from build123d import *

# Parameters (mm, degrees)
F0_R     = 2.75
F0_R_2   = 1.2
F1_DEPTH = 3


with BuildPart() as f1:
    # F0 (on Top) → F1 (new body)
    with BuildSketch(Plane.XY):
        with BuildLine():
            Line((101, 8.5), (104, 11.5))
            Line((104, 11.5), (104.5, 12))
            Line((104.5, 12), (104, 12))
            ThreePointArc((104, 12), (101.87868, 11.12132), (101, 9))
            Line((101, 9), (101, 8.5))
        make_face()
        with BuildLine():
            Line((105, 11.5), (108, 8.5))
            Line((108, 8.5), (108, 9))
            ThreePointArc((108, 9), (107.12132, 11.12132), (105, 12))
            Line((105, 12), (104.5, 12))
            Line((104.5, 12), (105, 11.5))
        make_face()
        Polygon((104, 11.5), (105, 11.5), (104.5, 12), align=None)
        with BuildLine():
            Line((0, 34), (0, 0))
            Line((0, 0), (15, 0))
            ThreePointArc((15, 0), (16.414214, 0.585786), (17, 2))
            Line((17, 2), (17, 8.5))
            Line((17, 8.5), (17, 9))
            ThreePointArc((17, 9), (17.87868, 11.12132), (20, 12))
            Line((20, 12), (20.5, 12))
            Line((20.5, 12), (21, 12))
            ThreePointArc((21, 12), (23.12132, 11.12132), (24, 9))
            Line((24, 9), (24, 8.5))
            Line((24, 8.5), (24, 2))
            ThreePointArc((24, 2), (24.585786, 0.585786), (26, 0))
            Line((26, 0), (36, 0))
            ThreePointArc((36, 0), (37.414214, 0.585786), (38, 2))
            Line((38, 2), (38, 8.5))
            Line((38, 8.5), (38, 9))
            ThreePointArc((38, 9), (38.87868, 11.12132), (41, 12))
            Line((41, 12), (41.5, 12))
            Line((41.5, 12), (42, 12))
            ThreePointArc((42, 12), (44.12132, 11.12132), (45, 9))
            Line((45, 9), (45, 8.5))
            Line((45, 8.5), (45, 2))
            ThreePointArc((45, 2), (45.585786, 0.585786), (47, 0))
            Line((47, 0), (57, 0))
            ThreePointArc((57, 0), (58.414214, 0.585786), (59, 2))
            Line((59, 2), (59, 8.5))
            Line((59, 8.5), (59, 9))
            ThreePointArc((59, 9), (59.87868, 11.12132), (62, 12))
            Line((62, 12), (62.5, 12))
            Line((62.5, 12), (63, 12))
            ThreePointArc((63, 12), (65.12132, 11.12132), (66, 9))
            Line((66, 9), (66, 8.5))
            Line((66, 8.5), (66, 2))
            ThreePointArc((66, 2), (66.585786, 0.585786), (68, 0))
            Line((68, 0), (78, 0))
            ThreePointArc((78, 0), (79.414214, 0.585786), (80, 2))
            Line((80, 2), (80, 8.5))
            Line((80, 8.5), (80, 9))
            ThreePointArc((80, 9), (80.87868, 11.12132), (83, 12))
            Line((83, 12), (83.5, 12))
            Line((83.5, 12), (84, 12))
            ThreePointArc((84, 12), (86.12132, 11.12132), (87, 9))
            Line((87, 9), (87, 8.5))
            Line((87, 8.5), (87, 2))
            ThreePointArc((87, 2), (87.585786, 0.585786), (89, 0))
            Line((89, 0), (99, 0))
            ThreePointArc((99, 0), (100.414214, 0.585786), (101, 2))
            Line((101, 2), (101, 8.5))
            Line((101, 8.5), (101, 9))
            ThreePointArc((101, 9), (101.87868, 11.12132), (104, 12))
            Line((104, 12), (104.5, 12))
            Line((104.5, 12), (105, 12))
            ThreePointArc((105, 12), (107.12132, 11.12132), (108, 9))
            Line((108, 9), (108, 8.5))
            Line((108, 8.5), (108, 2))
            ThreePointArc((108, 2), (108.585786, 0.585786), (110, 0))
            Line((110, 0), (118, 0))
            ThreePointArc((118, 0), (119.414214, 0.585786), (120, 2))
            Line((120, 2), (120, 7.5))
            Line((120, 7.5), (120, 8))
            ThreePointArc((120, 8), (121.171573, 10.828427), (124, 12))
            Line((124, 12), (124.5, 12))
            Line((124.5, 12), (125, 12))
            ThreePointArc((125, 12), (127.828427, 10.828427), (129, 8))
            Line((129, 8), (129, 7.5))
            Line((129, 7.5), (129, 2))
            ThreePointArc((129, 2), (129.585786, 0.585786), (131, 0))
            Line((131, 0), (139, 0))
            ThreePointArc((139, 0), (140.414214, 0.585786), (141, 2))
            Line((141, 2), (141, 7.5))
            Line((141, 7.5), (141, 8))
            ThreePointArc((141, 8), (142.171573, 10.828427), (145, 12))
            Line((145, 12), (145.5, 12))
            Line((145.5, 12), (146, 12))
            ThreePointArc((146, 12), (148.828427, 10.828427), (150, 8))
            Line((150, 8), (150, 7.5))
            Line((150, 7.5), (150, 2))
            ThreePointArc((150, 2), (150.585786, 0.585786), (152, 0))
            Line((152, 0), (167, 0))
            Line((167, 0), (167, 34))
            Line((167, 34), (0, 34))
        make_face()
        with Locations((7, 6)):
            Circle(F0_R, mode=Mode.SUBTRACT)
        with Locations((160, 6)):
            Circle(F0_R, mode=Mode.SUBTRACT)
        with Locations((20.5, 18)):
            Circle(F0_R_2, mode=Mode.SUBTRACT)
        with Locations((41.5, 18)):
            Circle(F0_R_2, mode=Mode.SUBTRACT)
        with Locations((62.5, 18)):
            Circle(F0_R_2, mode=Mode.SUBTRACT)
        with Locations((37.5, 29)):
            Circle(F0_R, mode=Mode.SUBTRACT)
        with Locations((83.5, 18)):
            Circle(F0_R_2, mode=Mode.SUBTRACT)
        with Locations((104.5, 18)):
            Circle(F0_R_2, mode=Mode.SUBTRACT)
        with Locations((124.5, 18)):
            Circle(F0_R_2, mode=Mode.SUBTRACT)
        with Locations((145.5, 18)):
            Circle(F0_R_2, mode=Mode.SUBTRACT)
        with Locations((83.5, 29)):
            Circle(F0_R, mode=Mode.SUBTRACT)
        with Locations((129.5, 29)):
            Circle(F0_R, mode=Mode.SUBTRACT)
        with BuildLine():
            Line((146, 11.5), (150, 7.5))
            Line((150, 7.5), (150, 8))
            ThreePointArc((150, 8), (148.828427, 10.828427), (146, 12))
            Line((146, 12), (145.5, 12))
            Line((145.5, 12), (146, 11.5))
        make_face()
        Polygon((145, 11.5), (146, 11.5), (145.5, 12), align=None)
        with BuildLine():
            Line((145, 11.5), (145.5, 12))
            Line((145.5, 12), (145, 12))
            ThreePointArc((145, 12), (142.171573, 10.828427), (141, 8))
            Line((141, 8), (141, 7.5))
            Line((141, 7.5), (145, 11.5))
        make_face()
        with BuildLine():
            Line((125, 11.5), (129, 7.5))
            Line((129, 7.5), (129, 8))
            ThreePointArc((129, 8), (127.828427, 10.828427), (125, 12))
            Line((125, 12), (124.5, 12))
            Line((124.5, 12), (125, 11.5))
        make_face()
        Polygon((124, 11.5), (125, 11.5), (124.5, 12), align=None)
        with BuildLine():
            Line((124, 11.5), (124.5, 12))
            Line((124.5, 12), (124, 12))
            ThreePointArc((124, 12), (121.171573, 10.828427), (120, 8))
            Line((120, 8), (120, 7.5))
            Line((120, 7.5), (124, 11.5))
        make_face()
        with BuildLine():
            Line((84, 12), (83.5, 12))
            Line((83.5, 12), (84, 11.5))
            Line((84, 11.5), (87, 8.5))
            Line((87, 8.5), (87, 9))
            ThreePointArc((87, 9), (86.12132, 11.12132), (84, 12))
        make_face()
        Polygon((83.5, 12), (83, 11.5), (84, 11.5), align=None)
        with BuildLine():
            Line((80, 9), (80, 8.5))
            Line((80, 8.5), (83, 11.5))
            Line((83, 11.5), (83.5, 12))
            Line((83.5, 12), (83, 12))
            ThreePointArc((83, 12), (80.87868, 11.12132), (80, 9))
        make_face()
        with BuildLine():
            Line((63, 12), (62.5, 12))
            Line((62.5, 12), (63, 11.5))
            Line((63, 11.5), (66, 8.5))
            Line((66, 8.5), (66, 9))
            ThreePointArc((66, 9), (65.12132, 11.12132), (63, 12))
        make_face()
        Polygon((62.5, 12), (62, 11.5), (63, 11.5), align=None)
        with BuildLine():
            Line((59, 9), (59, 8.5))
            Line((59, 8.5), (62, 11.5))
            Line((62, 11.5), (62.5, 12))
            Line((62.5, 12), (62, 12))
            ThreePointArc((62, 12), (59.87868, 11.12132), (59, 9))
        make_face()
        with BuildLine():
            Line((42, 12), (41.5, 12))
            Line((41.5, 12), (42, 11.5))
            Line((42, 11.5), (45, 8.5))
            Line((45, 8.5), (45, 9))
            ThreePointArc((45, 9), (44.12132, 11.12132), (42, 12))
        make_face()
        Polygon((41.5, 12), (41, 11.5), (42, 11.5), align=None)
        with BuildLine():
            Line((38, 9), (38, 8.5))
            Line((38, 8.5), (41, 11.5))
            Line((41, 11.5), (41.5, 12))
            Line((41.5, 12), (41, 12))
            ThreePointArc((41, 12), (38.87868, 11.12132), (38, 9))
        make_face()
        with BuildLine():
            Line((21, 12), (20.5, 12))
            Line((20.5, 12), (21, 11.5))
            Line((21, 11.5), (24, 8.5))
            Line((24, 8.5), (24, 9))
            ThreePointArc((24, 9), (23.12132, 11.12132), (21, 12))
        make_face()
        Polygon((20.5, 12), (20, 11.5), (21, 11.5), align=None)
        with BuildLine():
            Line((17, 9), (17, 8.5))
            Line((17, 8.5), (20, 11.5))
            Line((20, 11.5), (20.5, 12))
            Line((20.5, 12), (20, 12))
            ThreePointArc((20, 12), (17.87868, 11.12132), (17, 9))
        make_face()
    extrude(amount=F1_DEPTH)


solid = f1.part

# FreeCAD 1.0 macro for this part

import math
import FreeCAD as App
import Part
import Sketcher

doc = App.newDocument("Part")
body = doc.addObject("PartDesign::Body", "Body")

# Sketch on XY plane
sketch1 = body.newObject("Sketcher::SketchObject", "Sketch")
sketch1.AttachmentSupport = (doc.getObject("XY_Plane"), [""])
sketch1.MapMode = "FlatFace"
sketch1.addGeometry([
    Part.LineSegment(App.Vector(101, 8.5, 0), App.Vector(104, 11.5, 0)),  # 0
    Part.LineSegment(App.Vector(104, 11.5, 0), App.Vector(105, 11.5, 0)),  # 1
    Part.LineSegment(App.Vector(105, 11.5, 0), App.Vector(108, 8.5, 0)),  # 2
    Part.LineSegment(App.Vector(108, 8.5, 0), App.Vector(108, 2, 0)),  # 3
    Part.ArcOfCircle(Part.Circle(App.Vector(110, 2, 0), App.Vector(0, 0, 1), 2), math.radians(180), math.radians(270)),  # 4
    Part.LineSegment(App.Vector(110, 0, 0), App.Vector(118, 0, 0)),  # 5
    Part.ArcOfCircle(Part.Circle(App.Vector(118, 2, 0), App.Vector(0, 0, 1), 2), math.radians(-90), math.radians(0)),  # 6
    Part.LineSegment(App.Vector(120, 2, 0), App.Vector(120, 7.5, 0)),  # 7
    Part.LineSegment(App.Vector(120, 7.5, 0), App.Vector(124, 11.5, 0)),  # 8
    Part.LineSegment(App.Vector(124, 11.5, 0), App.Vector(125, 11.5, 0)),  # 9
    Part.LineSegment(App.Vector(125, 11.5, 0), App.Vector(129, 7.5, 0)),  # 10
    Part.LineSegment(App.Vector(129, 7.5, 0), App.Vector(129, 2, 0)),  # 11
    Part.ArcOfCircle(Part.Circle(App.Vector(131, 2, 0), App.Vector(0, 0, 1), 2), math.radians(180), math.radians(270)),  # 12
    Part.LineSegment(App.Vector(131, 0, 0), App.Vector(139, 0, 0)),  # 13
    Part.ArcOfCircle(Part.Circle(App.Vector(139, 2, 0), App.Vector(0, 0, 1), 2), math.radians(-90), math.radians(0)),  # 14
    Part.LineSegment(App.Vector(141, 2, 0), App.Vector(141, 7.5, 0)),  # 15
    Part.LineSegment(App.Vector(141, 7.5, 0), App.Vector(145, 11.5, 0)),  # 16
    Part.LineSegment(App.Vector(145, 11.5, 0), App.Vector(146, 11.5, 0)),  # 17
    Part.LineSegment(App.Vector(146, 11.5, 0), App.Vector(150, 7.5, 0)),  # 18
    Part.LineSegment(App.Vector(150, 7.5, 0), App.Vector(150, 2, 0)),  # 19
    Part.ArcOfCircle(Part.Circle(App.Vector(152, 2, 0), App.Vector(0, 0, 1), 2), math.radians(180), math.radians(270)),  # 20
    Part.LineSegment(App.Vector(152, 0, 0), App.Vector(167, 0, 0)),  # 21
    Part.LineSegment(App.Vector(167, 0, 0), App.Vector(167, 34, 0)),  # 22
    Part.LineSegment(App.Vector(167, 34, 0), App.Vector(0, 34, 0)),  # 23
    Part.LineSegment(App.Vector(0, 34, 0), App.Vector(0, 0, 0)),  # 24
    Part.LineSegment(App.Vector(0, 0, 0), App.Vector(15, 0, 0)),  # 25
    Part.ArcOfCircle(Part.Circle(App.Vector(15, 2, 0), App.Vector(0, 0, 1), 2), math.radians(-90), math.radians(0)),  # 26
    Part.LineSegment(App.Vector(17, 2, 0), App.Vector(17, 8.5, 0)),  # 27
    Part.LineSegment(App.Vector(17, 8.5, 0), App.Vector(20, 11.5, 0)),  # 28
    Part.LineSegment(App.Vector(20, 11.5, 0), App.Vector(21, 11.5, 0)),  # 29
    Part.LineSegment(App.Vector(21, 11.5, 0), App.Vector(24, 8.5, 0)),  # 30
    Part.LineSegment(App.Vector(24, 8.5, 0), App.Vector(24, 2, 0)),  # 31
    Part.ArcOfCircle(Part.Circle(App.Vector(26, 2, 0), App.Vector(0, 0, 1), 2), math.radians(180), math.radians(270)),  # 32
    Part.LineSegment(App.Vector(26, 0, 0), App.Vector(36, 0, 0)),  # 33
    Part.ArcOfCircle(Part.Circle(App.Vector(36, 2, 0), App.Vector(0, 0, 1), 2), math.radians(-90), math.radians(0)),  # 34
    Part.LineSegment(App.Vector(38, 2, 0), App.Vector(38, 8.5, 0)),  # 35
    Part.LineSegment(App.Vector(38, 8.5, 0), App.Vector(41, 11.5, 0)),  # 36
    Part.LineSegment(App.Vector(41, 11.5, 0), App.Vector(42, 11.5, 0)),  # 37
    Part.LineSegment(App.Vector(42, 11.5, 0), App.Vector(45, 8.5, 0)),  # 38
    Part.LineSegment(App.Vector(45, 8.5, 0), App.Vector(45, 2, 0)),  # 39
    Part.ArcOfCircle(Part.Circle(App.Vector(47, 2, 0), App.Vector(0, 0, 1), 2), math.radians(180), math.radians(270)),  # 40
    Part.LineSegment(App.Vector(47, 0, 0), App.Vector(57, 0, 0)),  # 41
    Part.ArcOfCircle(Part.Circle(App.Vector(57, 2, 0), App.Vector(0, 0, 1), 2), math.radians(-90), math.radians(0)),  # 42
    Part.LineSegment(App.Vector(59, 2, 0), App.Vector(59, 8.5, 0)),  # 43
    Part.LineSegment(App.Vector(59, 8.5, 0), App.Vector(62, 11.5, 0)),  # 44
    Part.LineSegment(App.Vector(62, 11.5, 0), App.Vector(63, 11.5, 0)),  # 45
    Part.LineSegment(App.Vector(63, 11.5, 0), App.Vector(66, 8.5, 0)),  # 46
    Part.LineSegment(App.Vector(66, 8.5, 0), App.Vector(66, 2, 0)),  # 47
    Part.ArcOfCircle(Part.Circle(App.Vector(68, 2, 0), App.Vector(0, 0, 1), 2), math.radians(180), math.radians(270)),  # 48
    Part.LineSegment(App.Vector(68, 0, 0), App.Vector(78, 0, 0)),  # 49
    Part.ArcOfCircle(Part.Circle(App.Vector(78, 2, 0), App.Vector(0, 0, 1), 2), math.radians(-90), math.radians(0)),  # 50
    Part.LineSegment(App.Vector(80, 2, 0), App.Vector(80, 8.5, 0)),  # 51
    Part.LineSegment(App.Vector(80, 8.5, 0), App.Vector(83, 11.5, 0)),  # 52
    Part.LineSegment(App.Vector(83, 11.5, 0), App.Vector(84, 11.5, 0)),  # 53
    Part.LineSegment(App.Vector(84, 11.5, 0), App.Vector(87, 8.5, 0)),  # 54
    Part.LineSegment(App.Vector(87, 8.5, 0), App.Vector(87, 2, 0)),  # 55
    Part.ArcOfCircle(Part.Circle(App.Vector(89, 2, 0), App.Vector(0, 0, 1), 2), math.radians(180), math.radians(270)),  # 56
    Part.LineSegment(App.Vector(89, 0, 0), App.Vector(99, 0, 0)),  # 57
    Part.ArcOfCircle(Part.Circle(App.Vector(99, 2, 0), App.Vector(0, 0, 1), 2), math.radians(-90), math.radians(0)),  # 58
    Part.LineSegment(App.Vector(101, 2, 0), App.Vector(101, 8.5, 0)),  # 59
    Part.Circle(App.Vector(7, 6, 0), App.Vector(0, 0, 1), 2.8),  # 60
    Part.Circle(App.Vector(160, 6, 0), App.Vector(0, 0, 1), 2.8),  # 61
    Part.Circle(App.Vector(20.5, 18, 0), App.Vector(0, 0, 1), 1.2),  # 62
    Part.Circle(App.Vector(41.5, 18, 0), App.Vector(0, 0, 1), 1.2),  # 63
    Part.Circle(App.Vector(62.5, 18, 0), App.Vector(0, 0, 1), 1.2),  # 64
    Part.Circle(App.Vector(37.5, 29, 0), App.Vector(0, 0, 1), 2.8),  # 65
    Part.Circle(App.Vector(83.5, 18, 0), App.Vector(0, 0, 1), 1.2),  # 66
    Part.Circle(App.Vector(104.5, 18, 0), App.Vector(0, 0, 1), 1.2),  # 67
    Part.Circle(App.Vector(124.5, 18, 0), App.Vector(0, 0, 1), 1.2),  # 68
    Part.Circle(App.Vector(145.5, 18, 0), App.Vector(0, 0, 1), 1.2),  # 69
    Part.Circle(App.Vector(83.5, 29, 0), App.Vector(0, 0, 1), 2.8),  # 70
    Part.Circle(App.Vector(129.5, 29, 0), App.Vector(0, 0, 1), 2.8),  # 71
], False)
sketch1.addConstraint([
    Sketcher.Constraint("Coincident", 0, 2, 1, 1),
    Sketcher.Constraint("Coincident", 1, 2, 2, 1),
    Sketcher.Constraint("Coincident", 2, 2, 3, 1),
    Sketcher.Constraint("Tangent", 3, 2, 4, 1),
    Sketcher.Constraint("Tangent", 4, 2, 5, 1),
    Sketcher.Constraint("Tangent", 5, 2, 6, 1),
    Sketcher.Constraint("Tangent", 6, 2, 7, 1),
    Sketcher.Constraint("Coincident", 7, 2, 8, 1),
    Sketcher.Constraint("Coincident", 8, 2, 9, 1),
    Sketcher.Constraint("Coincident", 9, 2, 10, 1),
    Sketcher.Constraint("Coincident", 10, 2, 11, 1),
    Sketcher.Constraint("Tangent", 11, 2, 12, 1),
    Sketcher.Constraint("Tangent", 12, 2, 13, 1),
    Sketcher.Constraint("Tangent", 13, 2, 14, 1),
    Sketcher.Constraint("Tangent", 14, 2, 15, 1),
    Sketcher.Constraint("Coincident", 15, 2, 16, 1),
    Sketcher.Constraint("Coincident", 16, 2, 17, 1),
    Sketcher.Constraint("Coincident", 17, 2, 18, 1),
    Sketcher.Constraint("Coincident", 18, 2, 19, 1),
    Sketcher.Constraint("Tangent", 19, 2, 20, 1),
    Sketcher.Constraint("Tangent", 20, 2, 21, 1),
    Sketcher.Constraint("Coincident", 21, 2, 22, 1),
    Sketcher.Constraint("Coincident", 22, 2, 23, 1),
    Sketcher.Constraint("Coincident", 23, 2, 24, 1),
    Sketcher.Constraint("Coincident", 24, 2, 25, 1),
    Sketcher.Constraint("Tangent", 25, 2, 26, 1),
    Sketcher.Constraint("Tangent", 26, 2, 27, 1),
    Sketcher.Constraint("Coincident", 27, 2, 28, 1),
    Sketcher.Constraint("Coincident", 28, 2, 29, 1),
    Sketcher.Constraint("Coincident", 29, 2, 30, 1),
    Sketcher.Constraint("Coincident", 30, 2, 31, 1),
    Sketcher.Constraint("Tangent", 31, 2, 32, 1),
    Sketcher.Constraint("Tangent", 32, 2, 33, 1),
    Sketcher.Constraint("Tangent", 33, 2, 34, 1),
    Sketcher.Constraint("Tangent", 34, 2, 35, 1),
    Sketcher.Constraint("Coincident", 35, 2, 36, 1),
    Sketcher.Constraint("Coincident", 36, 2, 37, 1),
    Sketcher.Constraint("Coincident", 37, 2, 38, 1),
    Sketcher.Constraint("Coincident", 38, 2, 39, 1),
    Sketcher.Constraint("Tangent", 39, 2, 40, 1),
    Sketcher.Constraint("Tangent", 40, 2, 41, 1),
    Sketcher.Constraint("Tangent", 41, 2, 42, 1),
    Sketcher.Constraint("Tangent", 42, 2, 43, 1),
    Sketcher.Constraint("Coincident", 43, 2, 44, 1),
    Sketcher.Constraint("Coincident", 44, 2, 45, 1),
    Sketcher.Constraint("Coincident", 45, 2, 46, 1),
    Sketcher.Constraint("Coincident", 46, 2, 47, 1),
    Sketcher.Constraint("Tangent", 47, 2, 48, 1),
    Sketcher.Constraint("Tangent", 48, 2, 49, 1),
    Sketcher.Constraint("Tangent", 49, 2, 50, 1),
    Sketcher.Constraint("Tangent", 50, 2, 51, 1),
    Sketcher.Constraint("Coincident", 51, 2, 52, 1),
    Sketcher.Constraint("Coincident", 52, 2, 53, 1),
    Sketcher.Constraint("Coincident", 53, 2, 54, 1),
    Sketcher.Constraint("Coincident", 54, 2, 55, 1),
    Sketcher.Constraint("Tangent", 55, 2, 56, 1),
    Sketcher.Constraint("Tangent", 56, 2, 57, 1),
    Sketcher.Constraint("Tangent", 57, 2, 58, 1),
    Sketcher.Constraint("Tangent", 58, 2, 59, 1),
    Sketcher.Constraint("Coincident", 59, 2, 0, 1),
    Sketcher.Constraint("Horizontal", 1),
    Sketcher.Constraint("Vertical", 3),
    Sketcher.Constraint("Horizontal", 5),
    Sketcher.Constraint("Vertical", 7),
    Sketcher.Constraint("Horizontal", 9),
    Sketcher.Constraint("Vertical", 11),
    Sketcher.Constraint("Horizontal", 13),
    Sketcher.Constraint("Vertical", 15),
    Sketcher.Constraint("Horizontal", 17),
    Sketcher.Constraint("Vertical", 19),
    Sketcher.Constraint("Horizontal", 21),
    Sketcher.Constraint("Vertical", 22),
    Sketcher.Constraint("Horizontal", 23),
    Sketcher.Constraint("Vertical", 24),
    Sketcher.Constraint("Horizontal", 25),
    Sketcher.Constraint("Vertical", 27),
    Sketcher.Constraint("Horizontal", 29),
    Sketcher.Constraint("Vertical", 31),
    Sketcher.Constraint("Horizontal", 33),
    Sketcher.Constraint("Vertical", 35),
    Sketcher.Constraint("Horizontal", 37),
    Sketcher.Constraint("Vertical", 39),
    Sketcher.Constraint("Horizontal", 41),
    Sketcher.Constraint("Vertical", 43),
    Sketcher.Constraint("Horizontal", 45),
    Sketcher.Constraint("Vertical", 47),
    Sketcher.Constraint("Horizontal", 49),
    Sketcher.Constraint("Vertical", 51),
    Sketcher.Constraint("Horizontal", 53),
    Sketcher.Constraint("Vertical", 55),
    Sketcher.Constraint("Horizontal", 57),
    Sketcher.Constraint("Vertical", 59),
    Sketcher.Constraint("Coincident", 24, 2, -1, 1),
    Sketcher.Constraint("Equal", 4, 6),
    Sketcher.Constraint("Equal", 6, 12),
    Sketcher.Constraint("Equal", 12, 14),
    Sketcher.Constraint("Equal", 14, 20),
    Sketcher.Constraint("Equal", 20, 26),
    Sketcher.Constraint("Equal", 26, 32),
    Sketcher.Constraint("Equal", 32, 34),
    Sketcher.Constraint("Equal", 34, 40),
    Sketcher.Constraint("Equal", 40, 42),
    Sketcher.Constraint("Equal", 42, 48),
    Sketcher.Constraint("Equal", 48, 50),
    Sketcher.Constraint("Equal", 50, 56),
    Sketcher.Constraint("Equal", 56, 58),
    Sketcher.Constraint("Equal", 60, 61),
    Sketcher.Constraint("Equal", 62, 63),
    Sketcher.Constraint("Equal", 63, 64),
    Sketcher.Constraint("Equal", 61, 65),
    Sketcher.Constraint("Equal", 64, 66),
    Sketcher.Constraint("Equal", 66, 67),
    Sketcher.Constraint("Equal", 67, 68),
    Sketcher.Constraint("Equal", 68, 69),
    Sketcher.Constraint("Equal", 65, 70),
    Sketcher.Constraint("Equal", 70, 71),
    Sketcher.Constraint("PointOnObject", 4, 2, -1),
    Sketcher.Constraint("PointOnObject", 12, 2, -1),
    Sketcher.Constraint("PointOnObject", 20, 2, -1),
    Sketcher.Constraint("PointOnObject", 32, 2, -1),
    Sketcher.Constraint("PointOnObject", 40, 2, -1),
    Sketcher.Constraint("PointOnObject", 48, 2, -1),
    Sketcher.Constraint("PointOnObject", 56, 2, -1),
    Sketcher.Constraint("Perpendicular", 0, 2),
    Sketcher.Constraint("Perpendicular", 2, 8),
    Sketcher.Constraint("Perpendicular", 8, 10),
    Sketcher.Constraint("Perpendicular", 10, 16),
    Sketcher.Constraint("Perpendicular", 16, 18),
    Sketcher.Constraint("Perpendicular", 18, 28),
    Sketcher.Constraint("Perpendicular", 28, 30),
    Sketcher.Constraint("Perpendicular", 30, 36),
    Sketcher.Constraint("Perpendicular", 36, 38),
    Sketcher.Constraint("Perpendicular", 38, 44),
    Sketcher.Constraint("Perpendicular", 44, 46),
    Sketcher.Constraint("Perpendicular", 46, 52),
    Sketcher.Constraint("Perpendicular", 52, 54),
    Sketcher.Constraint("Horizontal", 60, 3, 61, 3),
    Sketcher.Constraint("Horizontal", 62, 3, 63, 3),
    Sketcher.Constraint("Horizontal", 63, 3, 64, 3),
    Sketcher.Constraint("Horizontal", 64, 3, 66, 3),
    Sketcher.Constraint("Horizontal", 66, 3, 67, 3),
    Sketcher.Constraint("Horizontal", 67, 3, 68, 3),
    Sketcher.Constraint("Horizontal", 68, 3, 69, 3),
    Sketcher.Constraint("Horizontal", 65, 3, 70, 3),
    Sketcher.Constraint("Horizontal", 70, 3, 71, 3),
    Sketcher.Constraint("Horizontal", 1, 2, 8, 2),
    Sketcher.Constraint("Horizontal", 7, 2, 10, 2),
    Sketcher.Constraint("Horizontal", 10, 2, 15, 2),
    Sketcher.Constraint("Horizontal", 9, 2, 16, 2),
    Sketcher.Constraint("Horizontal", 15, 2, 18, 2),
    Sketcher.Constraint("Horizontal", 2, 2, 27, 2),
    Sketcher.Constraint("Horizontal", 17, 2, 28, 2),
    Sketcher.Constraint("Horizontal", 27, 2, 30, 2),
    Sketcher.Constraint("Horizontal", 30, 2, 35, 2),
    Sketcher.Constraint("Horizontal", 29, 2, 36, 2),
    Sketcher.Constraint("Horizontal", 35, 2, 38, 2),
    Sketcher.Constraint("Horizontal", 38, 2, 43, 2),
    Sketcher.Constraint("Horizontal", 37, 2, 44, 2),
    Sketcher.Constraint("Horizontal", 43, 2, 46, 2),
    Sketcher.Constraint("Horizontal", 46, 2, 51, 2),
    Sketcher.Constraint("Horizontal", 45, 2, 52, 2),
    Sketcher.Constraint("Horizontal", 51, 2, 54, 2),
    Sketcher.Constraint("Horizontal", 54, 2, 59, 2),
    Sketcher.Constraint("Vertical", 66, 3, 70, 3),
    Sketcher.Constraint("Equal", 1, 9),
    Sketcher.Constraint("Equal", 5, 13),
    Sketcher.Constraint("Equal", 9, 17),
    Sketcher.Constraint("Equal", 21, 25),
    Sketcher.Constraint("Equal", 17, 29),
    Sketcher.Constraint("Equal", 29, 37),
    Sketcher.Constraint("Equal", 33, 41),
    Sketcher.Constraint("Equal", 37, 45),
    Sketcher.Constraint("Equal", 41, 49),
    Sketcher.Constraint("Equal", 45, 53),
    Sketcher.Constraint("Equal", 49, 57),
    Sketcher.Constraint("Equal", 0, 2),
    Sketcher.Constraint("Radius", 4, 1.999999),
    Sketcher.Constraint("Diameter", 60, 5.5),
    Sketcher.Constraint("Diameter", 62, 2.4),
    Sketcher.Constraint("DistanceX", 1, 1, 1, 2, 1.0),
    Sketcher.Constraint("DistanceX", 5, 1, 5, 2, 8.0),
    Sketcher.Constraint("DistanceX", 21, 1, 21, 2, 15.0),
    Sketcher.Constraint("DistanceX", 23, 2, 23, 1, 167.0),
    Sketcher.Constraint("DistanceX", 33, 1, 33, 2, 10.0),
    Sketcher.Constraint("DistanceY", 22, 1, 22, 2, 34.0),
    Sketcher.Constraint("DistanceY", 3, 2, 3, 1, 6.5),
    Sketcher.Constraint("DistanceY", 7, 1, 7, 2, 5.5),
    Sketcher.Constraint("DistanceX", -1, 1, 60, 3, 7.0),
    Sketcher.Constraint("DistanceY", -1, 1, 60, 3, 6.0),
    Sketcher.Constraint("DistanceX", -1, 1, 61, 3, 160.0),
    Sketcher.Constraint("DistanceY", -1, 1, 62, 3, 18.0),
    Sketcher.Constraint("DistanceY", -1, 1, 65, 3, 29.0),
    Sketcher.Constraint("DistanceX", -1, 1, 62, 3, 20.5),
    Sketcher.Constraint("DistanceX", -1, 1, 63, 3, 41.5),
    Sketcher.Constraint("DistanceX", -1, 1, 64, 3, 62.5),
    Sketcher.Constraint("DistanceX", -1, 1, 65, 3, 37.5),
    Sketcher.Constraint("DistanceX", -1, 1, 66, 3, 83.5),
    Sketcher.Constraint("DistanceX", -1, 1, 67, 3, 104.5),
    Sketcher.Constraint("DistanceX", -1, 1, 68, 3, 124.5),
    Sketcher.Constraint("DistanceX", -1, 1, 69, 3, 145.5),
    Sketcher.Constraint("DistanceX", -1, 1, 71, 3, 129.5),
])
pad1 = body.newObject("PartDesign::Pad", "Pad")
pad1.Profile = sketch1
pad1.Length = 3

doc.recompute()
